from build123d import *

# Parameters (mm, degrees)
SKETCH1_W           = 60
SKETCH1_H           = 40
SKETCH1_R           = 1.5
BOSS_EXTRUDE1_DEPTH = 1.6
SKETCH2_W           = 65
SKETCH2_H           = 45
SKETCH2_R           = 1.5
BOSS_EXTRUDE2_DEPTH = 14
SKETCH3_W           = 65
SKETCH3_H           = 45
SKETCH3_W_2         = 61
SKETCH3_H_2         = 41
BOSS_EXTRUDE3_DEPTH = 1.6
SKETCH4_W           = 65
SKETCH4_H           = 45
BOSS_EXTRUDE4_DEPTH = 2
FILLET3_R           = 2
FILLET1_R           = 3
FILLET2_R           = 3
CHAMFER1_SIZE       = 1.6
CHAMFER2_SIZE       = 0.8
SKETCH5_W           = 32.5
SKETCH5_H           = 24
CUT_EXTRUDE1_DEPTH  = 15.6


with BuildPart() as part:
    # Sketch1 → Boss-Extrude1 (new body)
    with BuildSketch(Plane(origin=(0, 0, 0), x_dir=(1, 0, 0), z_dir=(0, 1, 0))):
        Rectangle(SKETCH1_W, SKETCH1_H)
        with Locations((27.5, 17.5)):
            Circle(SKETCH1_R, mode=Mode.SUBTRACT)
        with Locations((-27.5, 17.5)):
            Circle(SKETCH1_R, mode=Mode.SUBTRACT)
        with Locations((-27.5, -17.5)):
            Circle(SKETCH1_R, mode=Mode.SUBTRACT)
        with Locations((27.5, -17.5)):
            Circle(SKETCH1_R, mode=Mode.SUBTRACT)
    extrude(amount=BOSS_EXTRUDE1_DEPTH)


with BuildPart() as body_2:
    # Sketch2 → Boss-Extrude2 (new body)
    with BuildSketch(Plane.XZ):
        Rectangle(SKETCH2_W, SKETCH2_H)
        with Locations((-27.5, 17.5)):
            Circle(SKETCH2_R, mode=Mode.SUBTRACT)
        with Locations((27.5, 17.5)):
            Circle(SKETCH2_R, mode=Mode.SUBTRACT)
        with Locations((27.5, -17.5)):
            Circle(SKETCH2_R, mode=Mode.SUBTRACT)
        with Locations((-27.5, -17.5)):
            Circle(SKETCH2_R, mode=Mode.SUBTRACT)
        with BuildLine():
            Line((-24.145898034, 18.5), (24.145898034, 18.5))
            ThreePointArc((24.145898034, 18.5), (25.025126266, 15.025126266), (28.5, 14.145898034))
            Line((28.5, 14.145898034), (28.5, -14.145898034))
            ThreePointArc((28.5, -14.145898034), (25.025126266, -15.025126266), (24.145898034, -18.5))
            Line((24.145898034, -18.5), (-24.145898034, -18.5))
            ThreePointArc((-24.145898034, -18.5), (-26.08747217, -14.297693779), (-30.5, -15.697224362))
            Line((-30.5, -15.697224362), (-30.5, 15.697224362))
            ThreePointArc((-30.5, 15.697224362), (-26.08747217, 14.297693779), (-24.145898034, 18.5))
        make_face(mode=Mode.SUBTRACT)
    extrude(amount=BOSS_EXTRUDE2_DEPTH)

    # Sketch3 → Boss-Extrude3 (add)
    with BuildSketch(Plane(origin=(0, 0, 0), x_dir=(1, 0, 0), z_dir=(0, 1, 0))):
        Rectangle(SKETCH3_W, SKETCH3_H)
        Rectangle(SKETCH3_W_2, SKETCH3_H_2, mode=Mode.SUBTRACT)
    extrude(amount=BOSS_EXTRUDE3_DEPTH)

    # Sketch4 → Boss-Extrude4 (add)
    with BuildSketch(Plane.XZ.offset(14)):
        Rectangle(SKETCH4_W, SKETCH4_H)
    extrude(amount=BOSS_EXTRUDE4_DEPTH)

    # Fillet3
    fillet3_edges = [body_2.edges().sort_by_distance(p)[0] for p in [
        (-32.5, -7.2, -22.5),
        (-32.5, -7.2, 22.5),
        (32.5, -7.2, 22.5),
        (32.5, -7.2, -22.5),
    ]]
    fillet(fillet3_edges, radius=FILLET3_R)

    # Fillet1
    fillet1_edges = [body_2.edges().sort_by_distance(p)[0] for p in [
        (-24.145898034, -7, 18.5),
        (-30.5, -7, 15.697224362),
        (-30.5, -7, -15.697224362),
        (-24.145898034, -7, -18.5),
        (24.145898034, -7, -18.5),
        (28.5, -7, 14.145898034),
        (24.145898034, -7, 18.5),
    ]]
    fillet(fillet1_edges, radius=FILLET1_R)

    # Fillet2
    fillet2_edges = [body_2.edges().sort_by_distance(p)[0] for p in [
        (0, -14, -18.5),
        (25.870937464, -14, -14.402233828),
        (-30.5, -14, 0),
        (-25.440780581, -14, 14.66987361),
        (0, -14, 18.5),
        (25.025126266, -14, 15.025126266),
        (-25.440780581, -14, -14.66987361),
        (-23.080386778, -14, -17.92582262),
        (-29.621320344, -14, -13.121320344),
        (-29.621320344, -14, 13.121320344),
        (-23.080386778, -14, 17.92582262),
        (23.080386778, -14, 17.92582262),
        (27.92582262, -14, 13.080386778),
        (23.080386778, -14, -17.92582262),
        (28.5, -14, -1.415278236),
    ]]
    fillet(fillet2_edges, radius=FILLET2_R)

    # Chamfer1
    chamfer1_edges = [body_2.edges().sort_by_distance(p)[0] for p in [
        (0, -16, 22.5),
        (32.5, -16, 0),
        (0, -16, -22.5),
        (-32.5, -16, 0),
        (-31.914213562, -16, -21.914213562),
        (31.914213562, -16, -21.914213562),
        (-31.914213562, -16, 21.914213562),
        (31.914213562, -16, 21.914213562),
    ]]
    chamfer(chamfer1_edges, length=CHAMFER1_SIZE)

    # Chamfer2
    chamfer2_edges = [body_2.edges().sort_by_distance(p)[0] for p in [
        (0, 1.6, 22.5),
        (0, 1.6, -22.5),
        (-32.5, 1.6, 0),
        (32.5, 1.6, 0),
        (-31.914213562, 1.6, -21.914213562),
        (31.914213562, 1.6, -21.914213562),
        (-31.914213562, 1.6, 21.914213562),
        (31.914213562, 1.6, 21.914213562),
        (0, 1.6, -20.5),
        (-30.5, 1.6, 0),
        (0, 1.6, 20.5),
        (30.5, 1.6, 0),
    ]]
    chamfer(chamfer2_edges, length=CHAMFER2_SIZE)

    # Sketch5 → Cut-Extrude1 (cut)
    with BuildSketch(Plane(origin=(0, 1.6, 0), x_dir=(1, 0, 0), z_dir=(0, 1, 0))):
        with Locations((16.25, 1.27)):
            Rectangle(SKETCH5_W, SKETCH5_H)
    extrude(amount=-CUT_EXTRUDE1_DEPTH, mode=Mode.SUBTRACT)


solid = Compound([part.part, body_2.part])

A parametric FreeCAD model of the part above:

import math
import FreeCAD as App
import Part
import Sketcher


def edges_at(feature, points):
    """Names of the edges that pass closest to the given points."""
    edges = feature.Shape.Edges
    near = lambda p: min(range(len(edges)), key=lambda i: edges[i].distToShape(Part.Vertex(*p))[0])
    return sorted({f"Edge{near(p) + 1}" for p in points})


def add_polygon(sketch, points):
    """Adds a closed chain of lines whose ends are joined by coincident constraints."""
    first, n = sketch.GeometryCount, len(points)
    for a, b in zip(points, points[1:] + points[:1]):
        sketch.addGeometry(Part.LineSegment(App.Vector(*a, 0), App.Vector(*b, 0)), False)
    for i in range(n):
        sketch.addConstraint(Sketcher.Constraint("Coincident", first + i, 2, first + (i + 1) % n, 1))

doc = App.newDocument("Part")
body = doc.addObject("PartDesign::Body", "Body")

# Sketch on XZ plane
sketch1 = body.newObject("Sketcher::SketchObject", "Sketch")
sketch1.AttachmentSupport = (doc.getObject("XZ_Plane"), [""])
sketch1.MapMode = "FlatFace"
add_polygon(sketch1, [(-30, -20), (-30, 20), (30, 20), (30, -20)])  # lines 0-3
sketch1.addGeometry(Part.Circle(App.Vector(-27.5, 17.5, 0), App.Vector(0, 0, 1), 1.5), False)  # 4
sketch1.addGeometry(Part.Circle(App.Vector(27.5, 17.5, 0), App.Vector(0, 0, 1), 1.5), False)  # 5
sketch1.addGeometry(Part.Circle(App.Vector(-27.5, -17.5, 0), App.Vector(0, 0, 1), 1.5), False)  # 6
sketch1.addGeometry(Part.Circle(App.Vector(27.5, -17.5, 0), App.Vector(0, 0, 1), 1.5), False)  # 7
sketch1.addConstraint(Sketcher.Constraint("Vertical", 0))
sketch1.addConstraint(Sketcher.Constraint("Horizontal", 1))
sketch1.addConstraint(Sketcher.Constraint("Vertical", 2))
sketch1.addConstraint(Sketcher.Constraint("Horizontal", 3))
sketch1.addConstraint(Sketcher.Constraint("Equal", 4, 5))
sketch1.addConstraint(Sketcher.Constraint("Equal", 5, 6))
sketch1.addConstraint(Sketcher.Constraint("Equal", 6, 7))
sketch1.addConstraint(Sketcher.Constraint("Symmetric", 5, 3, 6, 3, -1, 1))
sketch1.addConstraint(Sketcher.Constraint("Symmetric", 4, 3, 7, 3, -1, 1))
sketch1.addConstraint(Sketcher.Constraint("Symmetric", 0, 2, 2, 2, -1, 1))
sketch1.addConstraint(Sketcher.Constraint("Symmetric", 4, 3, 5, 3, -2))
sketch1.addConstraint(Sketcher.Constraint("Diameter", 4, 3.0))
sketch1.addConstraint(Sketcher.Constraint("DistanceX", 1, 1, 1, 2, 60.0))
sketch1.addConstraint(Sketcher.Constraint("DistanceY", 0, 1, 0, 2, 40.0))
sketch1.addConstraint(Sketcher.Constraint("DistanceX", 4, 3, 5, 3, 55.0))
sketch1.addConstraint(Sketcher.Constraint("DistanceY", 6, 3, 4, 3, 35.0))
pad1 = body.newObject("PartDesign::Pad", "Pad")
pad1.Profile = sketch1
pad1.Length = 1.6
pad1.Reversed = True
body2 = doc.addObject("PartDesign::Body", "Body001")

# Sketch on XZ plane
sketch2 = body2.newObject("Sketcher::SketchObject", "Sketch001")
sketch2.AttachmentSupport = (doc.getObject("XZ_Plane001"), [""])
sketch2.MapMode = "FlatFace"
add_polygon(sketch2, [(-32.5, 22.5), (-32.5, -22.5), (32.5, -22.5), (32.5, 22.5)])  # lines 0-3
sketch2.addGeometry(Part.Circle(App.Vector(-27.5, -17.5, 0), App.Vector(0, 0, 1), 1.5), False)  # 4
sketch2.addGeometry(Part.Circle(App.Vector(27.5, -17.5, 0), App.Vector(0, 0, 1), 1.5), False)  # 5
sketch2.addGeometry(Part.ArcOfCircle(Part.Circle(App.Vector(-27.5, 17.5, 0), App.Vector(0, 0, 1), 3.5), math.radians(-149), math.radians(17)), False)  # 6
sketch2.addGeometry(Part.LineSegment(App.Vector(-24.1, 18.5, 0), App.Vector(24.1, 18.5, 0)), False)  # 7
sketch2.addGeometry(Part.ArcOfCircle(Part.Circle(App.Vector(27.5, 17.5, 0), App.Vector(0, 0, 1), 3.5), math.radians(163), math.radians(287)), False)  # 8
sketch2.addGeometry(Part.LineSegment(App.Vector(28.5, 14.1, 0), App.Vector(28.5, -14.1, 0)), False)  # 9
sketch2.addGeometry(Part.ArcOfCircle(Part.Circle(App.Vector(27.5, -17.5, 0), App.Vector(0, 0, 1), 3.5), math.radians(73), math.radians(197)), False)  # 10
sketch2.addGeometry(Part.LineSegment(App.Vector(24.1, -18.5, 0), App.Vector(-24.1, -18.5, 0)), False)  # 11
sketch2.addGeometry(Part.ArcOfCircle(Part.Circle(App.Vector(-27.5, -17.5, 0), App.Vector(0, 0, 1), 3.5), math.radians(-17), math.radians(149)), False)  # 12
sketch2.addGeometry(Part.LineSegment(App.Vector(-30.5, -15.7, 0), App.Vector(-30.5, 15.7, 0)), False)  # 13
sketch2.addGeometry(Part.Circle(App.Vector(-27.5, 17.5, 0), App.Vector(0, 0, 1), 1.5), False)  # 14
sketch2.addGeometry(Part.Circle(App.Vector(27.5, 17.5, 0), App.Vector(0, 0, 1), 1.5), False)  # 15
sketch2.addConstraint(Sketcher.Constraint("Coincident", 6, 2, 7, 1))
sketch2.addConstraint(Sketcher.Constraint("Coincident", 7, 2, 8, 1))
sketch2.addConstraint(Sketcher.Constraint("Coincident", 8, 2, 9, 1))
sketch2.addConstraint(Sketcher.Constraint("Coincident", 9, 2, 10, 1))
sketch2.addConstraint(Sketcher.Constraint("Coincident", 10, 2, 11, 1))
sketch2.addConstraint(Sketcher.Constraint("Coincident", 11, 2, 12, 1))
sketch2.addConstraint(Sketcher.Constraint("Coincident", 12, 2, 13, 1))
sketch2.addConstraint(Sketcher.Constraint("Coincident", 13, 2, 6, 1))
sketch2.addConstraint(Sketcher.Constraint("Vertical", 0))
sketch2.addConstraint(Sketcher.Constraint("Horizontal", 1))
sketch2.addConstraint(Sketcher.Constraint("Vertical", 2))
sketch2.addConstraint(Sketcher.Constraint("Horizontal", 3))
sketch2.addConstraint(Sketcher.Constraint("Horizontal", 7))
sketch2.addConstraint(Sketcher.Constraint("Vertical", 9))
sketch2.addConstraint(Sketcher.Constraint("Horizontal", 11))
sketch2.addConstraint(Sketcher.Constraint("Vertical", 13))
sketch2.addConstraint(Sketcher.Constraint("Coincident", 10, 3, 5, 3))
sketch2.addConstraint(Sketcher.Constraint("Coincident", 12, 3, 4, 3))
sketch2.addConstraint(Sketcher.Constraint("Coincident", 14, 3, 6, 3))
sketch2.addConstraint(Sketcher.Constraint("Coincident", 15, 3, 8, 3))
sketch2.addConstraint(Sketcher.Constraint("Equal", 4, 5))
sketch2.addConstraint(Sketcher.Constraint("Equal", 6, 8))
sketch2.addConstraint(Sketcher.Constraint("Equal", 8, 10))
sketch2.addConstraint(Sketcher.Constraint("Equal", 10, 12))
sketch2.addConstraint(Sketcher.Constraint("Equal", 5, 14))
sketch2.addConstraint(Sketcher.Constraint("Equal", 14, 15))
sketch2.addConstraint(Sketcher.Constraint("Symmetric", 5, 3, 6, 3, -1, 1))
sketch2.addConstraint(Sketcher.Constraint("Symmetric", 4, 3, 8, 3, -1, 1))
sketch2.addConstraint(Sketcher.Constraint("Symmetric", 0, 2, 2, 2, -1, 1))
sketch2.addConstraint(Sketcher.Constraint("Symmetric", 4, 3, 5, 3, -2))
sketch2.addConstraint(Sketcher.Constraint("Vertical", 7, 2, 10, 2))
sketch2.addConstraint(Sketcher.Constraint("Diameter", 4, 3.0))
sketch2.addConstraint(Sketcher.Constraint("Radius", 6, 3.5))
sketch2.addConstraint(Sketcher.Constraint("DistanceX", 1, 1, 1, 2, 65.0))
sketch2.addConstraint(Sketcher.Constraint("DistanceY", 0, 2, 0, 1, 45.0))
sketch2.addConstraint(Sketcher.Constraint("DistanceX", 4, 3, 5, 3, 55.0))
sketch2.addConstraint(Sketcher.Constraint("DistanceY", 4, 3, 6, 3, 35.0))
sketch2.addConstraint(Sketcher.Constraint("DistanceY", 14, 3, 6, 2, 1.0))
sketch2.addConstraint(Sketcher.Constraint("DistanceX", 8, 3, 8, 2, 1.0))
sketch2.addConstraint(Sketcher.Constraint("DistanceX", 12, 2, 12, 3, 3.0))
pad2 = body2.newObject("PartDesign::Pad", "Pad001")
pad2.Profile = sketch2
pad2.Length = 14

# Sketch on XZ plane
sketch3 = body2.newObject("Sketcher::SketchObject", "Sketch002")
sketch3.AttachmentSupport = (doc.getObject("XZ_Plane001"), [""])
sketch3.MapMode = "FlatFace"
add_polygon(sketch3, [(-32, -22), (-32, 22), (32, 22), (32, -22)])  # lines 0-3
add_polygon(sketch3, [(30, 20), (-30, 20), (-30, -20), (30, -20)])  # lines 4-7
sketch3.addConstraint(Sketcher.Constraint("Vertical", 0))
sketch3.addConstraint(Sketcher.Constraint("Horizontal", 1))
sketch3.addConstraint(Sketcher.Constraint("Vertical", 2))
sketch3.addConstraint(Sketcher.Constraint("Horizontal", 3))
sketch3.addConstraint(Sketcher.Constraint("Horizontal", 4))
sketch3.addConstraint(Sketcher.Constraint("Vertical", 5))
sketch3.addConstraint(Sketcher.Constraint("Horizontal", 6))
sketch3.addConstraint(Sketcher.Constraint("Vertical", 7))
sketch3.addConstraint(Sketcher.Constraint("Symmetric", 0, 2, 2, 2, -1, 1))
sketch3.addConstraint(Sketcher.Constraint("Symmetric", 4, 2, 6, 2, -1, 1))
sketch3.addConstraint(Sketcher.Constraint("DistanceX", 1, 1, 1, 2, 65.0))
sketch3.addConstraint(Sketcher.Constraint("DistanceX", 4, 2, 4, 1, 61.0))
sketch3.addConstraint(Sketcher.Constraint("DistanceY", 0, 1, 0, 2, 45.0))
sketch3.addConstraint(Sketcher.Constraint("DistanceY", 5, 2, 5, 1, 41.0))
pad3 = body2.newObject("PartDesign::Pad", "Pad002")
pad3.Profile = sketch3
pad3.Length = 1.6
pad3.Reversed = True

# Sketch on XZ plane
sketch4 = body2.newObject("Sketcher::SketchObject", "Sketch003")
sketch4.AttachmentSupport = (doc.getObject("XZ_Plane001"), [""])
sketch4.MapMode = "FlatFace"
sketch4.AttachmentOffset = App.Placement(App.Vector(0, 0, 14), App.Rotation())
add_polygon(sketch4, [(-32, 22), (-32, -22), (32, -22), (32, 22)])  # lines 0-3
sketch4.addConstraint(Sketcher.Constraint("Vertical", 0))
sketch4.addConstraint(Sketcher.Constraint("Horizontal", 1))
sketch4.addConstraint(Sketcher.Constraint("Vertical", 2))
sketch4.addConstraint(Sketcher.Constraint("Horizontal", 3))
sketch4.addConstraint(Sketcher.Constraint("Symmetric", 0, 2, 2, 2, -1, 1))
sketch4.addConstraint(Sketcher.Constraint("DistanceX", 1, 1, 1, 2, 65.0))
sketch4.addConstraint(Sketcher.Constraint("DistanceY", 0, 2, 0, 1, 45.0))
pad4 = body2.newObject("PartDesign::Pad", "Pad003")
pad4.Profile = sketch4
pad4.Length = 2
doc.recompute()

fillet = body2.newObject("PartDesign::Fillet", "Fillet")
fillet.Base = (pad4, edges_at(pad4, [
    (-32.5, -7.2, -22.5),
    (-32.5, -7.2, 22.5),
    (32.5, -7.2, 22.5),
    (32.5, -7.2, -22.5),
]))
fillet.Radius = 2
doc.recompute()

fillet2 = body2.newObject("PartDesign::Fillet", "Fillet001")
fillet2.Base = (fillet, edges_at(fillet, [
    (-24.146, -7, 18.5),
    (-30.5, -7, 15.697),
    (-30.5, -7, -15.697),
    (-24.146, -7, -18.5),
    (24.146, -7, -18.5),
    (28.5, -7, 14.146),
    (24.146, -7, 18.5),
]))
fillet2.Radius = 3
doc.recompute()

fillet3 = body2.newObject("PartDesign::Fillet", "Fillet002")
fillet3.Base = (fillet2, edges_at(fillet2, [
    (0, -14, -18.5),
    (25.871, -14, -14.402),
    (-30.5, -14, 0),
    (-25.441, -14, 14.67),
    (0, -14, 18.5),
    (25.025, -14, 15.025),
    (-25.441, -14, -14.67),
    (-23.08, -14, -17.926),
    (-29.621, -14, -13.121),
    (-29.621, -14, 13.121),
    (-23.08, -14, 17.926),
    (23.08, -14, 17.926),
    (27.926, -14, 13.08),
    (23.08, -14, -17.926),
    (28.5, -14, -1.415),
]))
fillet3.Radius = 3
doc.recompute()

chamfer = body2.newObject("PartDesign::Chamfer", "Chamfer")
chamfer.Base = (fillet3, edges_at(fillet3, [
    (0, -16, 22.5),
    (32.5, -16, 0),
    (0, -16, -22.5),
    (-32.5, -16, 0),
    (-31.914, -16, -21.914),
    (31.914, -16, -21.914),
    (-31.914, -16, 21.914),
    (31.914, -16, 21.914),
]))
chamfer.Size = 1.6
doc.recompute()

chamfer2 = body2.newObject("PartDesign::Chamfer", "Chamfer001")
chamfer2.Base = (chamfer, edges_at(chamfer, [
    (0, 1.6, 22.5),
    (0, 1.6, -22.5),
    (-32.5, 1.6, 0),
    (32.5, 1.6, 0),
    (-31.914, 1.6, -21.914),
    (31.914, 1.6, -21.914),
    (-31.914, 1.6, 21.914),
    (31.914, 1.6, 21.914),
    (0, 1.6, -20.5),
    (-30.5, 1.6, 0),
    (0, 1.6, 20.5),
    (30.5, 1.6, 0),
]))
chamfer2.Size = 0.8

# Sketch on XZ plane
sketch5 = body2.newObject("Sketcher::SketchObject", "Sketch004")
sketch5.AttachmentSupport = (doc.getObject("XZ_Plane001"), [""])
sketch5.MapMode = "FlatFace"
sketch5.AttachmentOffset = App.Placement(App.Vector(0, 0, -1.6), App.Rotation())
add_polygon(sketch5, [(0, -13), (0, 11), (32, 11), (32, -13)])  # lines 0-3
sketch5.addConstraint(Sketcher.Constraint("Vertical", 0))
sketch5.addConstraint(Sketcher.Constraint("Horizontal", 1))
sketch5.addConstraint(Sketcher.Constraint("Vertical", 2))
sketch5.addConstraint(Sketcher.Constraint("Horizontal", 3))
sketch5.addConstraint(Sketcher.Constraint("PointOnObject", 0, 2, -2))
sketch5.addConstraint(Sketcher.Constraint("DistanceY", 0, 1, 0, 2, 24.0))
sketch5.addConstraint(Sketcher.Constraint("DistanceX", 1, 1, 1, 2, 32.5))
sketch5.addConstraint(Sketcher.Constraint("DistanceY", -1, 1, 0, 2, 10.73))
pocket1 = body2.newObject("PartDesign::Pocket", "Pocket")
pocket1.Profile = sketch5
pocket1.Length = 15.6
pocket1.Reversed = True

doc.recompute()
